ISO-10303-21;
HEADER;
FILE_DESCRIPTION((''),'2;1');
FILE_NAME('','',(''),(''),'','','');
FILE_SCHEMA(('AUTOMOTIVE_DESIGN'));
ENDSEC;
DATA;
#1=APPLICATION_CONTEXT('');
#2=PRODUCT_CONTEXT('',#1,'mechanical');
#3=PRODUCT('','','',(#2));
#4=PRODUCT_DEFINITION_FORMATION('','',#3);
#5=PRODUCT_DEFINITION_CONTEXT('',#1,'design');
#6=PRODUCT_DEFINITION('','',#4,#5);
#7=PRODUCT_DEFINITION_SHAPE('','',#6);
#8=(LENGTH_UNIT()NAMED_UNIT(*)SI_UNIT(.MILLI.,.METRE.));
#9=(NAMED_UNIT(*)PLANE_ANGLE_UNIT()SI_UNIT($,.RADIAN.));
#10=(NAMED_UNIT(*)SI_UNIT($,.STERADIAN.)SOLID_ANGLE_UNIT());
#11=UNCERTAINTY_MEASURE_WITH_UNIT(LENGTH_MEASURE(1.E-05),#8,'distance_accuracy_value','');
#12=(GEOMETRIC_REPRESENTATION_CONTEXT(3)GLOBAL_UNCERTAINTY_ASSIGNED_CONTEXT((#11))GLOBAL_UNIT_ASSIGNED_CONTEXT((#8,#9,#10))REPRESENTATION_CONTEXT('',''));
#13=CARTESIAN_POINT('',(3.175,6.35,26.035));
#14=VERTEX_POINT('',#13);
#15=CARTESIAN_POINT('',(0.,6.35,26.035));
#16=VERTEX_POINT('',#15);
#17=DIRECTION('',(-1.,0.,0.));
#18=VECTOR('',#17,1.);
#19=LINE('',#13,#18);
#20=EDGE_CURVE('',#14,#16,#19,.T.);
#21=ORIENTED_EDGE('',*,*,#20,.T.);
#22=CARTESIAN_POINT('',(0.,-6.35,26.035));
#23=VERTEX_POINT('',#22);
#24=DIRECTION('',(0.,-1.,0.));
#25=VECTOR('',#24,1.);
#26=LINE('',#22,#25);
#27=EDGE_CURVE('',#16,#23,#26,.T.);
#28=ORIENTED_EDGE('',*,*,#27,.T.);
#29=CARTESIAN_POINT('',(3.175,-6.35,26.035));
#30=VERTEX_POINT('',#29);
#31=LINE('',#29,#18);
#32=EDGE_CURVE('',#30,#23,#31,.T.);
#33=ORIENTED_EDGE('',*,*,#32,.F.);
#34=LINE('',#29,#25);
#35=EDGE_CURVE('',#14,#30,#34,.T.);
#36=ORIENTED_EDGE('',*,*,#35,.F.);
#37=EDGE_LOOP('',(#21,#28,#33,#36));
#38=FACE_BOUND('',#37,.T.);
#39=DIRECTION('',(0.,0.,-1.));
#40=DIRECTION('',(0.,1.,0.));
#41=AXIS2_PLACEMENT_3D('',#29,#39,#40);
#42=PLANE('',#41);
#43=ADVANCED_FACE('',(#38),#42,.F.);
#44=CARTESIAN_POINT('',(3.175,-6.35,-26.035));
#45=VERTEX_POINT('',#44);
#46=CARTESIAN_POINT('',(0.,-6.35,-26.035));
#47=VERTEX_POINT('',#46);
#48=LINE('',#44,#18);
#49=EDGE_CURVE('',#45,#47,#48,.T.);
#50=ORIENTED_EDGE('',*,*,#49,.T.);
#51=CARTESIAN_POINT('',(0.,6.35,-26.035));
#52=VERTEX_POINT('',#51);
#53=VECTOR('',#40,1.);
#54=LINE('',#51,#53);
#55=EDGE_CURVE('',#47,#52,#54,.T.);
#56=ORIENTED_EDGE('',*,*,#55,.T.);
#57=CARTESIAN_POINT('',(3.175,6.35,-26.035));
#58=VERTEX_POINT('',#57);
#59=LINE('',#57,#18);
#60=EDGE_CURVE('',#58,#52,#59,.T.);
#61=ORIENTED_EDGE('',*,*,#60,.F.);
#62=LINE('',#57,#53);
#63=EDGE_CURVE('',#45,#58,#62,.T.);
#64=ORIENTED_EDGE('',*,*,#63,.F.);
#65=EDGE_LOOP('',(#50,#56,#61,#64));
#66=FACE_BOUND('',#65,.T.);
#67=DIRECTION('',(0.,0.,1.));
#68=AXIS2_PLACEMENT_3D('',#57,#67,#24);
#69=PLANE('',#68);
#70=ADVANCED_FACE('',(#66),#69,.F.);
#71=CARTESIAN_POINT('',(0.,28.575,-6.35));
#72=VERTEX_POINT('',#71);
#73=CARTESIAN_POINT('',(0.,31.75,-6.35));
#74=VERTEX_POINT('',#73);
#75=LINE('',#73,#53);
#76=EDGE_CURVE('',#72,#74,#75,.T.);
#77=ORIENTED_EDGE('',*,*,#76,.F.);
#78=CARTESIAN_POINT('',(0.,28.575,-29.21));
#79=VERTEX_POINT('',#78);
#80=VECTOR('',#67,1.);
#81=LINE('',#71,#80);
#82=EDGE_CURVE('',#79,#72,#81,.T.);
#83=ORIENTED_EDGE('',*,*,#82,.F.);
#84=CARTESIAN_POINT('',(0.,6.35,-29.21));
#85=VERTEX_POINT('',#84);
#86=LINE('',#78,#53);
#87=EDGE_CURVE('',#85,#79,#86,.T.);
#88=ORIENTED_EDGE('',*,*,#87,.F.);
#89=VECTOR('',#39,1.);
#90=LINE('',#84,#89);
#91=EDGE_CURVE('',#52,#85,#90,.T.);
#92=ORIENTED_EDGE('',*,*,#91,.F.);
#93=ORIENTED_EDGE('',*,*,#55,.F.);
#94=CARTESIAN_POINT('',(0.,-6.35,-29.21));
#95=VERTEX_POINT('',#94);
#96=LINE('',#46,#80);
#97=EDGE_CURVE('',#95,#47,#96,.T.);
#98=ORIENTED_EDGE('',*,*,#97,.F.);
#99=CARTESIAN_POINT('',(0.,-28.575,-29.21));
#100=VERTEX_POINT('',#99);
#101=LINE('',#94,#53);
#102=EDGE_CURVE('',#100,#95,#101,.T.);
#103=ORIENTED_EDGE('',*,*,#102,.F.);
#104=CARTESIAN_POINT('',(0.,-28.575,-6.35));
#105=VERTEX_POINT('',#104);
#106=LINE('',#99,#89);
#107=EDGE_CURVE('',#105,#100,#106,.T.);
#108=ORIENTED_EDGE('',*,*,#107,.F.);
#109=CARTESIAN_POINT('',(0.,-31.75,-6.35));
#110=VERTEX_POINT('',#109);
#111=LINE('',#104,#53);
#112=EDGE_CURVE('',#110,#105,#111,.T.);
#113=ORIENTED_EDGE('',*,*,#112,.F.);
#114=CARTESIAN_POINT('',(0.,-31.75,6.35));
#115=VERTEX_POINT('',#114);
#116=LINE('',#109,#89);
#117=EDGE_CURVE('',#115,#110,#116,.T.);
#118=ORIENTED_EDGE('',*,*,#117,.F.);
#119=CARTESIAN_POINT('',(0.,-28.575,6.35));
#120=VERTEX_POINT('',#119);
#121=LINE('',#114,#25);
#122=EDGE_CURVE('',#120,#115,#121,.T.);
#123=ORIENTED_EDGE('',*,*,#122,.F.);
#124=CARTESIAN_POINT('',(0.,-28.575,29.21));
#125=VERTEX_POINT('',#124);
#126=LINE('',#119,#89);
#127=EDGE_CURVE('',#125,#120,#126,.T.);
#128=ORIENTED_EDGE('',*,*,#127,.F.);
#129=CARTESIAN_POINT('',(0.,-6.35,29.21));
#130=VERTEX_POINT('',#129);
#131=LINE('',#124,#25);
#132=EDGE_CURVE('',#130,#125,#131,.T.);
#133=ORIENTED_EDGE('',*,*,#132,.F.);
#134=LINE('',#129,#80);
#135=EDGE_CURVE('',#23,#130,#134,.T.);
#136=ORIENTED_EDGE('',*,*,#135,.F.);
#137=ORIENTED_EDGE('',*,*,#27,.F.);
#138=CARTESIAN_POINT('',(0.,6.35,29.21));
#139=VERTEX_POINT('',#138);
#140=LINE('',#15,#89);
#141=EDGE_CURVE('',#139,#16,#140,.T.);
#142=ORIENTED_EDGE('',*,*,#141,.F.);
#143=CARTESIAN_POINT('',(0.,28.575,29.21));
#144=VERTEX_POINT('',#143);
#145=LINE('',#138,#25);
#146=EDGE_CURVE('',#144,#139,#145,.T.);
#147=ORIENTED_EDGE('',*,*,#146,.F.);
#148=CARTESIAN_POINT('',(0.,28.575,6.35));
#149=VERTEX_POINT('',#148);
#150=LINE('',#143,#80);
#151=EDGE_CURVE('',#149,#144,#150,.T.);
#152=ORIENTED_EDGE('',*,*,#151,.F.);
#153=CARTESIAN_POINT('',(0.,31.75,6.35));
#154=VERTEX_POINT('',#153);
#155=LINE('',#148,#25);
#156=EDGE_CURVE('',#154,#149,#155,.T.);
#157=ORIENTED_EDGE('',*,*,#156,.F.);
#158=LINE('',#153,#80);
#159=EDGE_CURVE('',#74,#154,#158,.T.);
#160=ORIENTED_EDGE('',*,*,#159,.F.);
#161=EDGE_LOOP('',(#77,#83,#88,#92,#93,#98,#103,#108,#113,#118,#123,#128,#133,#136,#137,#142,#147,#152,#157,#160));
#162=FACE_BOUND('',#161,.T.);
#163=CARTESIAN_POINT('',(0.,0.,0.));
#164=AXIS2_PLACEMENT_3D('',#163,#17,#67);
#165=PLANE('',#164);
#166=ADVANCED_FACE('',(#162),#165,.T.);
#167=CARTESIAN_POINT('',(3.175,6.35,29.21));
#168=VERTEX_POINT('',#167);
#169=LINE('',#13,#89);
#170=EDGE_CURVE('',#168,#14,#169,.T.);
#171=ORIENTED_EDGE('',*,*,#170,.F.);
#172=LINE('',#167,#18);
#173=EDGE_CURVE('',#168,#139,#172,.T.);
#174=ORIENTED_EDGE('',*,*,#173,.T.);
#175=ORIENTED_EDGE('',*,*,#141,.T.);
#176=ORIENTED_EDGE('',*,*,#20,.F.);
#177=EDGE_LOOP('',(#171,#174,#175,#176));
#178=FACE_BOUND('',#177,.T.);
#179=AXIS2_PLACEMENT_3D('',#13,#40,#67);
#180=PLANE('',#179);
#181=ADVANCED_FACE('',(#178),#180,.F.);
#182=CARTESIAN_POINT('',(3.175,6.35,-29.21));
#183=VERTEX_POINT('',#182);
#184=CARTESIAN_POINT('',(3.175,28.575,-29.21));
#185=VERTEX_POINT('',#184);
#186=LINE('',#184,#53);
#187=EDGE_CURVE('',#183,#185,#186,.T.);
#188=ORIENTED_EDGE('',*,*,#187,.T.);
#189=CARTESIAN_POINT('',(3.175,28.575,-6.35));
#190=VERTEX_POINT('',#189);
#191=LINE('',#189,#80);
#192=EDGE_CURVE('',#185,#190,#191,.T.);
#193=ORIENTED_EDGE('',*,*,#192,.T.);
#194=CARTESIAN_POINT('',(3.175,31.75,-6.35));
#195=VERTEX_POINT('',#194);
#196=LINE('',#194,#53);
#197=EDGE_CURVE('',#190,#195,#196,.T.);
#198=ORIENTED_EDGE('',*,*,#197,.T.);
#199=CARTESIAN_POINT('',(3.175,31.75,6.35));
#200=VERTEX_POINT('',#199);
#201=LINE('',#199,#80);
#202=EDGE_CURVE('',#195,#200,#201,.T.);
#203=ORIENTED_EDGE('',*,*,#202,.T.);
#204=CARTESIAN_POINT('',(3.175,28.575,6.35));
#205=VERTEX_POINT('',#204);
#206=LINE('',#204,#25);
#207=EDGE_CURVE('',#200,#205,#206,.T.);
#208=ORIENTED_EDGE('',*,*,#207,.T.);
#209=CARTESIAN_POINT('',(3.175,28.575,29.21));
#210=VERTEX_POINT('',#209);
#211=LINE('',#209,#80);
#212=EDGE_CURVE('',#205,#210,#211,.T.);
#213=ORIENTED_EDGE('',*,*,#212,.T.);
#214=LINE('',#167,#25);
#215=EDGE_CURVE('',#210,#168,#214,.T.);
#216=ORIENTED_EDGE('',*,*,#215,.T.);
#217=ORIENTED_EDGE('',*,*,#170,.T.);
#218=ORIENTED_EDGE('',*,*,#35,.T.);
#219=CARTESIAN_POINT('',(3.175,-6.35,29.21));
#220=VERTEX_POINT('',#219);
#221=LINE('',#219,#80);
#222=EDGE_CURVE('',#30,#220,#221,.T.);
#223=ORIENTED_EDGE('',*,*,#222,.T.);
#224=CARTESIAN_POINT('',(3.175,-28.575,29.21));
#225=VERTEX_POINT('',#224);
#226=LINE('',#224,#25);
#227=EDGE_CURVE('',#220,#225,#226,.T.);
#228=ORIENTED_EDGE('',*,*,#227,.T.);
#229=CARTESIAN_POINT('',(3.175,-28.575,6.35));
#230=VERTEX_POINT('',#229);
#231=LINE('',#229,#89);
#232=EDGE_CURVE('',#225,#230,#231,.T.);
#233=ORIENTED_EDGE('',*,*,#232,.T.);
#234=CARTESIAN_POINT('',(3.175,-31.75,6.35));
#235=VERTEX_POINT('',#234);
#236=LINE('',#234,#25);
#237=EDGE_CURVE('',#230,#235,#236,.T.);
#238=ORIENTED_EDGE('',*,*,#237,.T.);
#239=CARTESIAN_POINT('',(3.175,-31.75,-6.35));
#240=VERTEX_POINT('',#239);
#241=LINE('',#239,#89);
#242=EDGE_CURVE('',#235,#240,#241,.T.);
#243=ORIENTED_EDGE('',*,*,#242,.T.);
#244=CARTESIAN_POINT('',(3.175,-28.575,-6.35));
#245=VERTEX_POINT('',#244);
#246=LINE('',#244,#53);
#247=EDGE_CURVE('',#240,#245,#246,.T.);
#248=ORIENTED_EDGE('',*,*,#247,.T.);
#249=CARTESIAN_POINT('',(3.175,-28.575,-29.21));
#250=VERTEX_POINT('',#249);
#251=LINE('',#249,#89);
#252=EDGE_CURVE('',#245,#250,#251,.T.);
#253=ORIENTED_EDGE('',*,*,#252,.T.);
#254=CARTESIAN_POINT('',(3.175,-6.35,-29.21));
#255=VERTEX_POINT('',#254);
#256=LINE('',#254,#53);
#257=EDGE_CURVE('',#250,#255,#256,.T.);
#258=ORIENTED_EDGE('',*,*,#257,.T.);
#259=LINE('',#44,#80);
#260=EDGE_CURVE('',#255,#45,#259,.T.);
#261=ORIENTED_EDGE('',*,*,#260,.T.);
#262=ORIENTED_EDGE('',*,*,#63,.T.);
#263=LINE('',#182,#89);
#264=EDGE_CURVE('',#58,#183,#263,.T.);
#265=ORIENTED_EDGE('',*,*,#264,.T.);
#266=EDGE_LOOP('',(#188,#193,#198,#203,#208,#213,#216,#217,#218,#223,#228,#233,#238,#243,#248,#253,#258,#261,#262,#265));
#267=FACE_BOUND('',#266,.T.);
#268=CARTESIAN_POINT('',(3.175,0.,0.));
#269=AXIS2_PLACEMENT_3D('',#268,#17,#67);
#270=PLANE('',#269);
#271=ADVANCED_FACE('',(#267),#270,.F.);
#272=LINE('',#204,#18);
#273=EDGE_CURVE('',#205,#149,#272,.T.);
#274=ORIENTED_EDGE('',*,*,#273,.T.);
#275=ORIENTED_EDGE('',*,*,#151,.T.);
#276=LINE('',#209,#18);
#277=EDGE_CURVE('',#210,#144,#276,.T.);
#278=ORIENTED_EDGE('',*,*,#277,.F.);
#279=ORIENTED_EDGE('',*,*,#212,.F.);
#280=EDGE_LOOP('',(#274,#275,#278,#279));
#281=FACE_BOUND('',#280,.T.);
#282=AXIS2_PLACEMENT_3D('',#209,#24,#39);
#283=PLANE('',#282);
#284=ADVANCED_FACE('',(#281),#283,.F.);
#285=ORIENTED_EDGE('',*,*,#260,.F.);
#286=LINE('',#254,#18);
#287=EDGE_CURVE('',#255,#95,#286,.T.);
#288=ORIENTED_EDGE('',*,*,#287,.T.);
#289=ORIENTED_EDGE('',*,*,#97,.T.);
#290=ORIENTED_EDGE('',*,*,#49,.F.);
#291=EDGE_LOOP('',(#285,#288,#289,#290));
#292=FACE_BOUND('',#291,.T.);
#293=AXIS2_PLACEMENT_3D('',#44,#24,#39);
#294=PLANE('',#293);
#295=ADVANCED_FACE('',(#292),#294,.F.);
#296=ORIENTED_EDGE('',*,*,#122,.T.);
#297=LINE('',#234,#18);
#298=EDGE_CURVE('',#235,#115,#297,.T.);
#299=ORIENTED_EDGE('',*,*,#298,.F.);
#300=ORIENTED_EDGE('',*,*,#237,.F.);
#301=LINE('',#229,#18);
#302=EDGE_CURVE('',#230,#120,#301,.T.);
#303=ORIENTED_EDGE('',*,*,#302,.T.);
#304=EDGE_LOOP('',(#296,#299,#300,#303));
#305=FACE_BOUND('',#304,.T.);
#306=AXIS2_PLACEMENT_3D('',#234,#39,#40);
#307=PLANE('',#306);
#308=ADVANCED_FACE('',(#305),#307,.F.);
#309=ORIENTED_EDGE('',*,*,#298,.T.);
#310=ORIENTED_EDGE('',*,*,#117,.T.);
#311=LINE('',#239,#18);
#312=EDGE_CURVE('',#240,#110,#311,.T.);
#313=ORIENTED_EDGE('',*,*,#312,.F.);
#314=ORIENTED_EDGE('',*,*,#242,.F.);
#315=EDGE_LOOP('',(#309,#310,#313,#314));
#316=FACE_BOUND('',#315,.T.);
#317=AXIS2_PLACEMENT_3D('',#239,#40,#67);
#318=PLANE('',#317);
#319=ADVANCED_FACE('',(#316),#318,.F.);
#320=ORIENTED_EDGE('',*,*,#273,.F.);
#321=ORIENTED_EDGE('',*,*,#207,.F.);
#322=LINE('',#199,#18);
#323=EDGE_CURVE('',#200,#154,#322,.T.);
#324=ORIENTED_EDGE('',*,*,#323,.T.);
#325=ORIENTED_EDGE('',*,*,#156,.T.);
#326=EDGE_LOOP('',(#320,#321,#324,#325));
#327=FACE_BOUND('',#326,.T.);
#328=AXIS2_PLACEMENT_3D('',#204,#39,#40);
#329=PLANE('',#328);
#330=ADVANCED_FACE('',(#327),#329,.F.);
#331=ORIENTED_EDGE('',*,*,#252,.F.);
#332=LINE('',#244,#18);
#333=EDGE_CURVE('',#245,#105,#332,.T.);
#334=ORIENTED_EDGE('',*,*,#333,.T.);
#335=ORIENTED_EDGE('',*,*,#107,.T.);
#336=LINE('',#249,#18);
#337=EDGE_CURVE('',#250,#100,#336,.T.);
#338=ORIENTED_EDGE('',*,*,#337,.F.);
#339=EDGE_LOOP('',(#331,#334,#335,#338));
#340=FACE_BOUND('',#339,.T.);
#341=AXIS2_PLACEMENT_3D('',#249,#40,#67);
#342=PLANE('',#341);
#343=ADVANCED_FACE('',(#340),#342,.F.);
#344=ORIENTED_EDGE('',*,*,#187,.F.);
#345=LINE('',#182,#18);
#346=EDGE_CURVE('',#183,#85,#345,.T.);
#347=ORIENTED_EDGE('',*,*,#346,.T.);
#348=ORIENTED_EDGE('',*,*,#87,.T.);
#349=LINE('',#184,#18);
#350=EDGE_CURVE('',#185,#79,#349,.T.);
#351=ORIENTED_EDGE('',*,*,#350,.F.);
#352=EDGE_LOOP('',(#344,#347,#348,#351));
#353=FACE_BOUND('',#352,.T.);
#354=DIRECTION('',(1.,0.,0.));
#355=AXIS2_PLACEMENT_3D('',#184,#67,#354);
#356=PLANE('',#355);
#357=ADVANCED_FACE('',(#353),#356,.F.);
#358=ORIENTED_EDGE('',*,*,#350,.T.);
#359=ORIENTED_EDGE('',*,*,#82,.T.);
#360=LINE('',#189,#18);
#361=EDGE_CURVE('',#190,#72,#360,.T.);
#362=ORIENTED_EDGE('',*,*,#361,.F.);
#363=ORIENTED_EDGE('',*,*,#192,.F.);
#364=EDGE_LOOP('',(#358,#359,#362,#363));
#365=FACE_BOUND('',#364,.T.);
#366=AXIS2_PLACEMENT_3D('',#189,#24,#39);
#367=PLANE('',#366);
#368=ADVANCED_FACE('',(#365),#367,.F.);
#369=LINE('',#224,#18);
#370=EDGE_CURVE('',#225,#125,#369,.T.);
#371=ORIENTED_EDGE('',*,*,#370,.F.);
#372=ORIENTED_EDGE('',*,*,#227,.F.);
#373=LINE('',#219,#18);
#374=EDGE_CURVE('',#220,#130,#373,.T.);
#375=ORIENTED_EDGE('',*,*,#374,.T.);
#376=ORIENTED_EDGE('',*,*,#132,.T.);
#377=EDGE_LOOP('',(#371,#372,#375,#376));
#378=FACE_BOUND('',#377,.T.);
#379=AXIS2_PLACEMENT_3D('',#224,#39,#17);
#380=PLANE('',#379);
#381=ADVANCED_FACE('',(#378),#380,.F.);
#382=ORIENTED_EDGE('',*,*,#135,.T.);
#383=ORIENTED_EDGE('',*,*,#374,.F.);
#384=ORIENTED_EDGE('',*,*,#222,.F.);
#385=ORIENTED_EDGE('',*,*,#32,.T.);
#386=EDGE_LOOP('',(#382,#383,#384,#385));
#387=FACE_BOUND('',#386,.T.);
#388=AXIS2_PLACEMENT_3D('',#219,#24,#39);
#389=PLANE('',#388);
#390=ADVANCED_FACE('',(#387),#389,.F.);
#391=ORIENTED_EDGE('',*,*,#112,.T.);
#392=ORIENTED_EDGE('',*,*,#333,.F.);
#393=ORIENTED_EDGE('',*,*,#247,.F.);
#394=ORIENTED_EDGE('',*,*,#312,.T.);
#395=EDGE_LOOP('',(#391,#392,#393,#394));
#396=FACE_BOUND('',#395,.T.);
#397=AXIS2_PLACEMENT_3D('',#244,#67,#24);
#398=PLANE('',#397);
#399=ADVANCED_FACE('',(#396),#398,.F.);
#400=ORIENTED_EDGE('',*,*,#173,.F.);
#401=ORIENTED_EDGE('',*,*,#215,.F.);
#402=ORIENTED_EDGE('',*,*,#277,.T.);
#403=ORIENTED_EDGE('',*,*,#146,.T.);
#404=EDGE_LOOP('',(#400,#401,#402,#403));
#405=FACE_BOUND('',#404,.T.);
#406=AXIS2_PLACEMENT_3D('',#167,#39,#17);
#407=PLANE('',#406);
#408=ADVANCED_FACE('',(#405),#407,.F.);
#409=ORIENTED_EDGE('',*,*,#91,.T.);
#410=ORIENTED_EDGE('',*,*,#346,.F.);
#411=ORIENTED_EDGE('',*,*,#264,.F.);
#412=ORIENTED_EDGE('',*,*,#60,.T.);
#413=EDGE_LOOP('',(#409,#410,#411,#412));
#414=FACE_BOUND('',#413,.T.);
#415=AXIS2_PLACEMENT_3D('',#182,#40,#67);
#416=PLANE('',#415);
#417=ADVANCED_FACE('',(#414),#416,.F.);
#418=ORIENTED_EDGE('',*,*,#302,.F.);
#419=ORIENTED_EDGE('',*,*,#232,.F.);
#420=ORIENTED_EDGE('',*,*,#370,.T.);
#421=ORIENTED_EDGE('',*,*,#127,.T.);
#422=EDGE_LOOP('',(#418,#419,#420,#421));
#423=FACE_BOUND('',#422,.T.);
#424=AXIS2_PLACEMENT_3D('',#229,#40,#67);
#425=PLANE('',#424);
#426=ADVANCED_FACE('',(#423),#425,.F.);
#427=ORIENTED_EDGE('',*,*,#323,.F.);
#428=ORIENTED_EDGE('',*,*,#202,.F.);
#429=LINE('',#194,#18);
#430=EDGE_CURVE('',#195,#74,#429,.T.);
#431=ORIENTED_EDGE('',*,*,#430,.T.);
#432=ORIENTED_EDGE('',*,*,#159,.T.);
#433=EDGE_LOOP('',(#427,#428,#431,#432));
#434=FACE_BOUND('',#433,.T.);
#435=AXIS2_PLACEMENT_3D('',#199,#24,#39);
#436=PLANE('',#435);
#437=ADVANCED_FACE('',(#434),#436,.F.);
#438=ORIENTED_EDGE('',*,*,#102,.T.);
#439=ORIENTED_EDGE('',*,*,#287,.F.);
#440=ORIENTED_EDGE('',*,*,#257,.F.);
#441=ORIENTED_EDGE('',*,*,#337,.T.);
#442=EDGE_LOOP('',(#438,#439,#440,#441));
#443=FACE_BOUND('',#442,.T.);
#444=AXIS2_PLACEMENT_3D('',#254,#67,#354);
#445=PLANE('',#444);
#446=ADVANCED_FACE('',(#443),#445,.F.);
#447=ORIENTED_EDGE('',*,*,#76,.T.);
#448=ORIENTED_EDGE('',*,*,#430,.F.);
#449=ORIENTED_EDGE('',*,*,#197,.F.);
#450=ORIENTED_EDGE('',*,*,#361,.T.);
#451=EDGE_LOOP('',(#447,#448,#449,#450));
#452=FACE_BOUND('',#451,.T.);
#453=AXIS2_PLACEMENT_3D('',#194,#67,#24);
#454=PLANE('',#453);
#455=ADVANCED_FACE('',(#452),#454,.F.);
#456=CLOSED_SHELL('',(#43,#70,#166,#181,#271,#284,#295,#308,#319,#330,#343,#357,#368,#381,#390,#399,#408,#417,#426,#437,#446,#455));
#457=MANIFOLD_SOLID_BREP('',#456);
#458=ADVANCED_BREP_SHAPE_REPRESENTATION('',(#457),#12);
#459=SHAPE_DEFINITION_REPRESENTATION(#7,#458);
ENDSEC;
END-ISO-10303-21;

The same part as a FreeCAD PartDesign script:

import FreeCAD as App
import Part
import Sketcher
from FreeCAD import Vector
Q = App.Units.Quantity


def add_polygon(sketch, points):
    """Adds a closed chain of lines whose ends are joined by coincident constraints."""
    first, n = sketch.GeometryCount, len(points)
    for a, b in zip(points, points[1:] + points[:1]):
        sketch.addGeometry(Part.LineSegment(App.Vector(*a, 0), App.Vector(*b, 0)), False)
    for i in range(n):
        sketch.addConstraint(Sketcher.Constraint("Coincident", first + i, 2, first + (i + 1) % n, 1))

doc = App.newDocument("Part")
params = doc.addObject("Spreadsheet::Sheet", "Params")
for row, (alias, value) in enumerate([
    ("sketch1_width", "0.5 in"),
    ("sketch1_height", "0.9 in"),
    ("sketch1_width2", "0.875 in"),
    ("pad1_length", "0.125 in"),
], start=1):
    params.set(f"A{row}", alias)
    params.set(f"B{row}", "=" + value)
    params.setAlias(f"B{row}", alias)

body = doc.addObject("PartDesign::Body", "Body")

sketch1 = body.newObject("Sketcher::SketchObject", "Sketch")
sketch1.AttachmentSupport = (doc.getObject("YZ_Plane"), [""])
sketch1.MapMode = "FlatFace"
add_polygon(sketch1, [(28.575, 6.35), (28.575, 29.21), (6.35, 29.21), (6.35, 26.035), (-6.35, 26.035), (-6.35, 29.21), (-28.575, 29.21), (-28.575, 6.35), (-31.75, 6.35), (-31.75, -6.35), (-28.575, -6.35), (-28.575, -29.21), (-6.35, -29.21), (-6.35, -26.035), (6.35, -26.035), (6.35, -29.21), (28.575, -29.21), (28.575, -6.35), (31.75, -6.35), (31.75, 6.35)])
sketch1.addConstraint([
    Sketcher.Constraint("Vertical", 0),
    Sketcher.Constraint("Horizontal", 1),
    Sketcher.Constraint("Vertical", 2),
    Sketcher.Constraint("Horizontal", 3),
    Sketcher.Constraint("Vertical", 4),
    Sketcher.Constraint("Horizontal", 5),
    Sketcher.Constraint("Vertical", 6),
    Sketcher.Constraint("Horizontal", 7),
    Sketcher.Constraint("Vertical", 8),
    Sketcher.Constraint("Horizontal", 9),
    Sketcher.Constraint("Vertical", 10),
    Sketcher.Constraint("Horizontal", 11),
    Sketcher.Constraint("Vertical", 12),
    Sketcher.Constraint("Horizontal", 13),
    Sketcher.Constraint("Vertical", 14),
    Sketcher.Constraint("Horizontal", 15),
    Sketcher.Constraint("Vertical", 16),
    Sketcher.Constraint("Horizontal", 17),
    Sketcher.Constraint("Vertical", 18),
    Sketcher.Constraint("Horizontal", 19),
    Sketcher.Constraint("Symmetric", 0, 2, 10, 2, -1, 1),
    Sketcher.Constraint("Symmetric", 2, 2, 12, 2, -1, 1),
    Sketcher.Constraint("Symmetric", 4, 2, 14, 2, -1, 1),
    Sketcher.Constraint("Symmetric", 6, 2, 16, 2, -1, 1),
    Sketcher.Constraint("Symmetric", 8, 2, 18, 2, -1, 1),
    Sketcher.Constraint("Symmetric", 1, 2, 4, 2, -2),
    Sketcher.Constraint("Symmetric", 9, 2, 16, 2, -2),
    Sketcher.Constraint("Equal", 19, 2),
    Sketcher.Constraint("Equal", 13, 8),
    Sketcher.Constraint("DistanceX", 3, 2, 3, 1, Q("0.5 in")),
    Sketcher.Constraint("DistanceY", 0, 1, 0, 2, Q("0.9 in")),
    Sketcher.Constraint("DistanceX", 7, 2, 3, 2, Q("1 in")),
    Sketcher.Constraint("DistanceX", 1, 2, 1, 1, Q("0.875 in")),
])
sketch1.setExpression("Constraints[49]", "Params.sketch1_width")
sketch1.setExpression("Constraints[50]", "Params.sketch1_height")
sketch1.setExpression("Constraints[52]", "Params.sketch1_width2")
pad1 = body.newObject("PartDesign::Pad", "Pad")
pad1.Profile = sketch1
pad1.setExpression("Length", "Params.pad1_length")

doc.recompute()
